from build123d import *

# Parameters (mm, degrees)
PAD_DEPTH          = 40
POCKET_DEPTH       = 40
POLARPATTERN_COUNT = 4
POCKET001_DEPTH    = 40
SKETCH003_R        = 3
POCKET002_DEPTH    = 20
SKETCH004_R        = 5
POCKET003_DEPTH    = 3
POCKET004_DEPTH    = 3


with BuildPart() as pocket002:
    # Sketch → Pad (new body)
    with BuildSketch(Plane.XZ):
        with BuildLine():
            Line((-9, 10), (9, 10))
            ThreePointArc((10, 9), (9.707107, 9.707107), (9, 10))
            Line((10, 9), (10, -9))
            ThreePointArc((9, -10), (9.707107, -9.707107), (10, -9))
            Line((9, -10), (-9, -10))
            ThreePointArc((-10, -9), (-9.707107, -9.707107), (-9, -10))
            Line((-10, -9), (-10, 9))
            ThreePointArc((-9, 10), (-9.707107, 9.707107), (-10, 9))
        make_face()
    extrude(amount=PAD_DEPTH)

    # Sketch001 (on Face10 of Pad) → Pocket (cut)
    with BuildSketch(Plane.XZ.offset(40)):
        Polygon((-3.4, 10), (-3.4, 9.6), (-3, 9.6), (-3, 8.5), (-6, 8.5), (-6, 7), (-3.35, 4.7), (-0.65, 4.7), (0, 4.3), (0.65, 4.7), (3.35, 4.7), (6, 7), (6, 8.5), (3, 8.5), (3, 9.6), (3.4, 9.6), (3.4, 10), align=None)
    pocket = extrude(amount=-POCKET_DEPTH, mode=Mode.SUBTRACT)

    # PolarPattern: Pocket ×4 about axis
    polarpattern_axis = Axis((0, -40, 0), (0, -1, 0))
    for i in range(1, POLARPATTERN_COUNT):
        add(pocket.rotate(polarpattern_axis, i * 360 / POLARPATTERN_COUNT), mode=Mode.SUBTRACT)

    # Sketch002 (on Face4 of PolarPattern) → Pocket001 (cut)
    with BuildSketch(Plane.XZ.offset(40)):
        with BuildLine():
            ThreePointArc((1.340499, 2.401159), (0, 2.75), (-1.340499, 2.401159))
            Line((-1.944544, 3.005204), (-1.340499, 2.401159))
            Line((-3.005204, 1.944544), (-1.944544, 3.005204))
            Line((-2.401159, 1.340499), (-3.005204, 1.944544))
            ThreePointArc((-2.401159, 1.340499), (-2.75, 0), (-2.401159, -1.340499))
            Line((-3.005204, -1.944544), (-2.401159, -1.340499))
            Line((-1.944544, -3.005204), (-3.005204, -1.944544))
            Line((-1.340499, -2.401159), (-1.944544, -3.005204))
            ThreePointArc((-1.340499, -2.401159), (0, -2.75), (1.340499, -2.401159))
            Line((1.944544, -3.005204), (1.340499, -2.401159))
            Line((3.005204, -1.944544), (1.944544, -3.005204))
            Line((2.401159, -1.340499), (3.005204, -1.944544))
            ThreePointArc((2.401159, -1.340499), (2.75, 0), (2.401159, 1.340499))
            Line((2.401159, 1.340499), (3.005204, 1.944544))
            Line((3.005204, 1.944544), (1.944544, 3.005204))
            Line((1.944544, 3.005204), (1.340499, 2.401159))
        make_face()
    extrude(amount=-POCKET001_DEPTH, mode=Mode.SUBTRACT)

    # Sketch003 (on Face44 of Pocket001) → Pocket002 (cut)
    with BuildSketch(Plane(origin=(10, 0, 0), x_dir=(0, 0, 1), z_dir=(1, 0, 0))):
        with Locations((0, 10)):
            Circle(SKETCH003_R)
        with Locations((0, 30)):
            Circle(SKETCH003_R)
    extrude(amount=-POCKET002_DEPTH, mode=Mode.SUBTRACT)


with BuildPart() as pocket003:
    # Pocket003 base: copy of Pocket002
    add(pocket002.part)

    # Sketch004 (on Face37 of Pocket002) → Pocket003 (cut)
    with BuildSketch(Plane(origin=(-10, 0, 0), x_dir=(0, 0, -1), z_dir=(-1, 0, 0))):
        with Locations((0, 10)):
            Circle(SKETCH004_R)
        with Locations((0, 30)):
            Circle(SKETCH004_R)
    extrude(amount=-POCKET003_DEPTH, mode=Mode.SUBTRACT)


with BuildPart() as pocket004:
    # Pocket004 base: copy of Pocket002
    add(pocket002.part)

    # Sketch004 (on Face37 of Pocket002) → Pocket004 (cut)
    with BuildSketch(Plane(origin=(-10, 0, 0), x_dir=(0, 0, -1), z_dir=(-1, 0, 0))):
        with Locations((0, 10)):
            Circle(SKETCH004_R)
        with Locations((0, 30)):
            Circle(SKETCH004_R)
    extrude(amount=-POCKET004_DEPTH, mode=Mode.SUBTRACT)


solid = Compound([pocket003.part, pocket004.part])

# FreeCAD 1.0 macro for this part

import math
import FreeCAD as App
import Part
import Sketcher
Q = App.Units.Quantity

doc = App.newDocument("Part")
params = doc.addObject("Spreadsheet::Sheet", "Params")
for row, (alias, value) in enumerate([
    ("sketch1_radius", "0.999999 mm"),
    ("sketch1_width", "18 mm"),
    ("pad1_length", "40 mm"),
    ("sketch2_width", "3 mm"),
    ("sketch2_width2", "0.4 mm"),
    ("sketch2_width3", "2.7 mm"),
    ("sketch2_width4", "6.8 mm"),
    ("sketch2_height", "1.1 mm"),
    ("pocket1_length", "40 mm"),
    ("sketch3_length", "1.5 mm"),
    ("pocket2_length", "40 mm"),
    ("sketch4_diameter", "6 mm"),
    ("pocket3_length", "20 mm"),
    ("sketch5_diameter", "10 mm"),
    ("pocket4_length", "3 mm"),
    ("sketch6_diameter", "10 mm"),
    ("pocket5_length", "3 mm"),
], start=1):
    params.set(f"A{row}", alias)
    params.set(f"B{row}", "=" + value)
    params.setAlias(f"B{row}", alias)

body = doc.addObject("PartDesign::Body", "Body")

# Sketch on XZ plane
sketch1 = body.newObject("Sketcher::SketchObject", "Sketch")
sketch1.AttachmentSupport = (doc.getObject("XZ_Plane"), [""])
sketch1.MapMode = "FlatFace"
sketch1.addGeometry([
    Part.LineSegment(App.Vector(9, 10, 0), App.Vector(-9, 10, 0)),  # 0
    Part.ArcOfCircle(Part.Circle(App.Vector(-9.000001, 9.000001, 0), App.Vector(0, 0, 1), 0.999999), math.radians(89.999957), math.radians(180.000043)),  # 1
    Part.LineSegment(App.Vector(-10, 9, 0), App.Vector(-10, -9, 0)),  # 2
    Part.ArcOfCircle(Part.Circle(App.Vector(-9.000001, -9.000001, 0), App.Vector(0, 0, 1), 0.999999), math.radians(179.999957), math.radians(270.000043)),  # 3
    Part.LineSegment(App.Vector(-9, -10, 0), App.Vector(9, -10, 0)),  # 4
    Part.ArcOfCircle(Part.Circle(App.Vector(9.000001, -9.000001, 0), App.Vector(0, 0, 1), 0.999999), math.radians(-90.000043), math.radians(0.000043)),  # 5
    Part.LineSegment(App.Vector(10, -9, 0), App.Vector(10, 9, 0)),  # 6
    Part.ArcOfCircle(Part.Circle(App.Vector(9.000001, 9.000001, 0), App.Vector(0, 0, 1), 0.999999), math.radians(-0.000043), math.radians(90.000043)),  # 7
], False)
sketch1.addConstraint([
    Sketcher.Constraint("Tangent", 0, 2, 1, 1),
    Sketcher.Constraint("Tangent", 1, 2, 2, 1),
    Sketcher.Constraint("Tangent", 2, 2, 3, 1),
    Sketcher.Constraint("Tangent", 3, 2, 4, 1),
    Sketcher.Constraint("Tangent", 4, 2, 5, 1),
    Sketcher.Constraint("Tangent", 5, 2, 6, 1),
    Sketcher.Constraint("Tangent", 6, 2, 7, 1),
    Sketcher.Constraint("Tangent", 7, 2, 0, 1),
    Sketcher.Constraint("Horizontal", 0),
    Sketcher.Constraint("Vertical", 2),
    Sketcher.Constraint("Horizontal", 4),
    Sketcher.Constraint("Vertical", 6),
    Sketcher.Constraint("Equal", 1, 3),
    Sketcher.Constraint("Equal", 3, 5),
    Sketcher.Constraint("Equal", 5, 7),
    Sketcher.Constraint("Symmetric", 1, 3, 5, 3, -1, 1),
    Sketcher.Constraint("Equal", 4, 2),
    Sketcher.Constraint("Radius", 1, Q("0.999999 mm")),
    Sketcher.Constraint("DistanceX", 0, 2, 0, 1, Q("18 mm")),
])
sketch1.setExpression("Constraints[17]", "Params.sketch1_radius")
sketch1.setExpression("Constraints[18]", "Params.sketch1_width")
pad1 = body.newObject("PartDesign::Pad", "Pad")
pad1.Profile = sketch1
pad1.setExpression("Length", "Params.pad1_length")

# Sketch on XZ plane
sketch2 = body.newObject("Sketcher::SketchObject", "Sketch001")
sketch2.AttachmentSupport = (doc.getObject("XZ_Plane"), [""])
sketch2.MapMode = "FlatFace"
sketch2.AttachmentOffset = App.Placement(App.Vector(0, 0, 40), App.Rotation())
sketch2.addGeometry([
    Part.LineSegment(App.Vector(-3.4, 10, 0), App.Vector(-3.4, 9.6, 0)),  # 0
    Part.LineSegment(App.Vector(-3.4, 9.6, 0), App.Vector(-3, 9.6, 0)),  # 1
    Part.LineSegment(App.Vector(-3, 9.6, 0), App.Vector(-3, 8.5, 0)),  # 2
    Part.LineSegment(App.Vector(-3, 8.5, 0), App.Vector(-6, 8.5, 0)),  # 3
    Part.LineSegment(App.Vector(-6, 8.5, 0), App.Vector(-6, 7, 0)),  # 4
    Part.LineSegment(App.Vector(-6, 7, 0), App.Vector(-3.35, 4.7, 0)),  # 5
    Part.LineSegment(App.Vector(-3.35, 4.7, 0), App.Vector(-0.65, 4.7, 0)),  # 6
    Part.LineSegment(App.Vector(-0.65, 4.7, 0), App.Vector(0, 4.3, 0)),  # 7
    Part.LineSegment(App.Vector(0, 4.3, 0), App.Vector(0.65, 4.7, 0)),  # 8
    Part.LineSegment(App.Vector(0.65, 4.7, 0), App.Vector(3.35, 4.7, 0)),  # 9
    Part.LineSegment(App.Vector(3.35, 4.7, 0), App.Vector(6, 7, 0)),  # 10
    Part.LineSegment(App.Vector(6, 7, 0), App.Vector(6, 8.5, 0)),  # 11
    Part.LineSegment(App.Vector(6, 8.5, 0), App.Vector(3, 8.5, 0)),  # 12
    Part.LineSegment(App.Vector(3, 8.5, 0), App.Vector(3, 9.6, 0)),  # 13
    Part.LineSegment(App.Vector(3, 9.6, 0), App.Vector(3.4, 9.6, 0)),  # 14
    Part.LineSegment(App.Vector(3.4, 9.6, 0), App.Vector(3.4, 10, 0)),  # 15
    Part.LineSegment(App.Vector(3.4, 10, 0), App.Vector(-3.4, 10, 0)),  # 16
], False)
sketch2.addConstraint([
    Sketcher.Constraint("Coincident", 0, 2, 1, 1),
    Sketcher.Constraint("Coincident", 1, 2, 2, 1),
    Sketcher.Constraint("Coincident", 2, 2, 3, 1),
    Sketcher.Constraint("Coincident", 3, 2, 4, 1),
    Sketcher.Constraint("Coincident", 4, 2, 5, 1),
    Sketcher.Constraint("Coincident", 5, 2, 6, 1),
    Sketcher.Constraint("Coincident", 6, 2, 7, 1),
    Sketcher.Constraint("Coincident", 7, 2, 8, 1),
    Sketcher.Constraint("Coincident", 8, 2, 9, 1),
    Sketcher.Constraint("Coincident", 9, 2, 10, 1),
    Sketcher.Constraint("Coincident", 10, 2, 11, 1),
    Sketcher.Constraint("Coincident", 11, 2, 12, 1),
    Sketcher.Constraint("Coincident", 12, 2, 13, 1),
    Sketcher.Constraint("Coincident", 13, 2, 14, 1),
    Sketcher.Constraint("Coincident", 14, 2, 15, 1),
    Sketcher.Constraint("Coincident", 15, 2, 16, 1),
    Sketcher.Constraint("Coincident", 16, 2, 0, 1),
    Sketcher.Constraint("Vertical", 0),
    Sketcher.Constraint("Horizontal", 1),
    Sketcher.Constraint("Vertical", 2),
    Sketcher.Constraint("Horizontal", 3),
    Sketcher.Constraint("Vertical", 4),
    Sketcher.Constraint("Horizontal", 6),
    Sketcher.Constraint("Horizontal", 9),
    Sketcher.Constraint("Vertical", 11),
    Sketcher.Constraint("Horizontal", 12),
    Sketcher.Constraint("Vertical", 13),
    Sketcher.Constraint("Horizontal", 14),
    Sketcher.Constraint("Vertical", 15),
    Sketcher.Constraint("Horizontal", 16),
    Sketcher.Constraint("Symmetric", 6, 2, 8, 2, -2),
    Sketcher.Constraint("Symmetric", 4, 2, 10, 2, -2),
    Sketcher.Constraint("Symmetric", 2, 2, 12, 2, -2),
    Sketcher.Constraint("Symmetric", 0, 2, 14, 2, -2),
    Sketcher.Constraint("PointOnObject", 7, 2, -2),
    Sketcher.Constraint("Equal", 6, 9),
    Sketcher.Constraint("Equal", 14, 0),
    Sketcher.Constraint("DistanceX", 3, 2, 3, 1, Q("3 mm")),
    Sketcher.Constraint("DistanceX", 1, 1, 1, 2, Q("0.4 mm")),
    Sketcher.Constraint("DistanceX", 6, 1, 6, 2, Q("2.7 mm")),
    Sketcher.Constraint("DistanceX", 16, 2, 16, 1, Q("6.8 mm")),
    Sketcher.Constraint("DistanceY", 2, 2, 2, 1, Q("1.1 mm")),
    Sketcher.Constraint("DistanceY", 4, 2, 4, 1, Q("1.5 mm")),
    Sketcher.Constraint("DistanceY", -1, 1, 4, 2, Q("7 mm")),
    Sketcher.Constraint("DistanceX", 5, 2, 8, 2, Q("4 mm")),
    Sketcher.Constraint("DistanceY", -1, 1, 5, 2, Q("4.7 mm")),
    Sketcher.Constraint("DistanceY", -1, 1, 7, 2, Q("4.3 mm")),
])
sketch2.setExpression("Constraints[37]", "Params.sketch2_width")
sketch2.setExpression("Constraints[38]", "Params.sketch2_width2")
sketch2.setExpression("Constraints[39]", "Params.sketch2_width3")
sketch2.setExpression("Constraints[40]", "Params.sketch2_width4")
sketch2.setExpression("Constraints[41]", "Params.sketch2_height")
pocket1 = body.newObject("PartDesign::Pocket", "Pocket")
pocket1.Profile = sketch2
pocket1.setExpression("Length", "Params.pocket1_length")
doc.recompute()

polarpattern = body.newObject("PartDesign::PolarPattern", "PolarPattern")
polarpattern.Originals = [pocket1]
polarpattern.Axis = (doc.getObject("Y_Axis"), [""])
polarpattern.Angle = 360
polarpattern.Occurrences = 4
body.Tip = polarpattern

# Sketch on XZ plane
sketch3 = body.newObject("Sketcher::SketchObject", "Sketch002")
sketch3.AttachmentSupport = (doc.getObject("XZ_Plane"), [""])
sketch3.MapMode = "FlatFace"
sketch3.AttachmentOffset = App.Placement(App.Vector(0, 0, 40), App.Rotation())
sketch3.addGeometry([
    Part.ArcOfCircle(Part.Circle(App.Vector(0, -0.000003, 0), App.Vector(0, 0, 1), 2.750003), math.radians(60.826646), math.radians(119.173354)),  # 0
    Part.LineSegment(App.Vector(-1.340499, 2.401159, 0), App.Vector(-1.944544, 3.005204, 0)),  # 1
    Part.LineSegment(App.Vector(-1.944544, 3.005204, 0), App.Vector(-3.005204, 1.944544, 0)),  # 2
    Part.LineSegment(App.Vector(-3.005204, 1.944544, 0), App.Vector(-2.401159, 1.340499, 0)),  # 3
    Part.ArcOfCircle(Part.Circle(App.Vector(0.000003, 0, 0), App.Vector(0, 0, 1), 2.750003), math.radians(150.826646), math.radians(209.173354)),  # 4
    Part.LineSegment(App.Vector(-2.401159, -1.340499, 0), App.Vector(-3.005204, -1.944544, 0)),  # 5
    Part.LineSegment(App.Vector(-3.005204, -1.944544, 0), App.Vector(-1.944544, -3.005204, 0)),  # 6
    Part.LineSegment(App.Vector(-1.944544, -3.005204, 0), App.Vector(-1.340499, -2.401159, 0)),  # 7
    Part.ArcOfCircle(Part.Circle(App.Vector(0, 0.000003, 0), App.Vector(0, 0, 1), 2.750003), math.radians(-119.173354), math.radians(-60.826646)),  # 8
    Part.LineSegment(App.Vector(1.340499, -2.401159, 0), App.Vector(1.944544, -3.005204, 0)),  # 9
    Part.LineSegment(App.Vector(1.944544, -3.005204, 0), App.Vector(3.005204, -1.944544, 0)),  # 10
    Part.LineSegment(App.Vector(3.005204, -1.944544, 0), App.Vector(2.401159, -1.340499, 0)),  # 11
    Part.ArcOfCircle(Part.Circle(App.Vector(-0.000003, 0, 0), App.Vector(0, 0, 1), 2.750003), math.radians(-29.173354), math.radians(29.173354)),  # 12
    Part.LineSegment(App.Vector(2.401159, 1.340499, 0), App.Vector(3.005204, 1.944544, 0)),  # 13
    Part.LineSegment(App.Vector(3.005204, 1.944544, 0), App.Vector(1.944544, 3.005204, 0)),  # 14
    Part.LineSegment(App.Vector(1.944544, 3.005204, 0), App.Vector(1.340499, 2.401159, 0)),  # 15
], False)
sketch3.addConstraint([
    Sketcher.Constraint("Coincident", 0, 2, 1, 1),
    Sketcher.Constraint("Coincident", 1, 2, 2, 1),
    Sketcher.Constraint("Coincident", 2, 2, 3, 1),
    Sketcher.Constraint("Coincident", 3, 2, 4, 1),
    Sketcher.Constraint("Coincident", 4, 2, 5, 1),
    Sketcher.Constraint("Coincident", 5, 2, 6, 1),
    Sketcher.Constraint("Coincident", 6, 2, 7, 1),
    Sketcher.Constraint("Coincident", 7, 2, 8, 1),
    Sketcher.Constraint("Coincident", 8, 2, 9, 1),
    Sketcher.Constraint("Coincident", 9, 2, 10, 1),
    Sketcher.Constraint("Coincident", 10, 2, 11, 1),
    Sketcher.Constraint("Coincident", 11, 2, 12, 1),
    Sketcher.Constraint("Coincident", 12, 2, 13, 1),
    Sketcher.Constraint("Coincident", 13, 2, 14, 1),
    Sketcher.Constraint("Coincident", 14, 2, 15, 1),
    Sketcher.Constraint("Coincident", 15, 2, 0, 1),
    Sketcher.Constraint("Coincident", 0, 3, -1, 1),
    Sketcher.Constraint("Coincident", 4, 3, -1, 1),
    Sketcher.Constraint("Coincident", 8, 3, -1, 1),
    Sketcher.Constraint("Coincident", 12, 3, -1, 1),
    Sketcher.Constraint("Equal", 0, 4),
    Sketcher.Constraint("Equal", 4, 8),
    Sketcher.Constraint("Equal", 8, 12),
    Sketcher.Constraint("Symmetric", 1, 2, 9, 2, -1, 1),
    Sketcher.Constraint("Symmetric", 2, 2, 10, 2, -1, 1),
    Sketcher.Constraint("Symmetric", 5, 2, 13, 2, -1, 1),
    Sketcher.Constraint("Symmetric", 6, 2, 14, 2, -1, 1),
    Sketcher.Constraint("Symmetric", 6, 2, 9, 2, -2),
    Sketcher.Constraint("Symmetric", 5, 2, 10, 2, -2),
    Sketcher.Constraint("Perpendicular", 1, 2),
    Sketcher.Constraint("Perpendicular", 2, 3),
    Sketcher.Constraint("Perpendicular", 3, 5),
    Sketcher.Constraint("Perpendicular", 5, 6),
    Sketcher.Constraint("Perpendicular", 6, 7),
    Sketcher.Constraint("Perpendicular", 7, 9),
    Sketcher.Constraint("Perpendicular", 10, 11),
    Sketcher.Constraint("Perpendicular", 11, 13),
    Sketcher.Constraint("Perpendicular", 14, 15),
    Sketcher.Constraint("Equal", 1, 3),
    Sketcher.Constraint("Distance", 2, Q("1.5 mm")),
    Sketcher.Constraint("Radius", 0, Q("2.750003 mm")),
    Sketcher.Constraint("DistanceY", 8, 3, 1, 2, Q("3.005201 mm")),
])
sketch3.setExpression("Constraints[39]", "Params.sketch3_length")
pocket2 = body.newObject("PartDesign::Pocket", "Pocket001")
pocket2.Profile = sketch3
pocket2.setExpression("Length", "Params.pocket2_length")

# Sketch on YZ plane
sketch4 = body.newObject("Sketcher::SketchObject", "Sketch003")
sketch4.AttachmentSupport = (doc.getObject("YZ_Plane"), [""])
sketch4.MapMode = "FlatFace"
sketch4.AttachmentOffset = App.Placement(App.Vector(0, 0, 10), App.Rotation())
sketch4.addGeometry([
    Part.Circle(App.Vector(-10, 0, 0), App.Vector(0, 0, 1), 3),
    Part.Circle(App.Vector(-30, 0, 0), App.Vector(0, 0, 1), 3),
], False)
sketch4.addConstraint([
    Sketcher.Constraint("Equal", 0, 1),
    Sketcher.Constraint("PointOnObject", 0, 3, -1),
    Sketcher.Constraint("PointOnObject", 1, 3, -1),
    Sketcher.Constraint("Diameter", 0, Q("6 mm")),
    Sketcher.Constraint("DistanceX", 0, 3, -1, 1, Q("10 mm")),
    Sketcher.Constraint("DistanceX", 1, 3, -1, 1, Q("30 mm")),
])
sketch4.setExpression("Constraints[3]", "Params.sketch4_diameter")
pocket3 = body.newObject("PartDesign::Pocket", "Pocket002")
pocket3.Profile = sketch4
pocket3.setExpression("Length", "Params.pocket3_length")
body2 = doc.addObject("PartDesign::Body", "Body001")
doc.recompute()

body2.BaseFeature = body
doc.recompute()

# Sketch on YZ plane
sketch5 = body2.newObject("Sketcher::SketchObject", "Sketch004")
sketch5.AttachmentSupport = (doc.getObject("YZ_Plane001"), [""])
sketch5.MapMode = "FlatFace"
sketch5.AttachmentOffset = App.Placement(App.Vector(0, 0, -10), App.Rotation())
sketch5.addGeometry([
    Part.Circle(App.Vector(-10, 0, 0), App.Vector(0, 0, 1), 5),
    Part.Circle(App.Vector(-30, 0, 0), App.Vector(0, 0, 1), 5),
], False)
sketch5.addConstraint([
    Sketcher.Constraint("Equal", 0, 1),
    Sketcher.Constraint("PointOnObject", 0, 3, -1),
    Sketcher.Constraint("PointOnObject", 1, 3, -1),
    Sketcher.Constraint("Diameter", 0, Q("10 mm")),
    Sketcher.Constraint("DistanceX", 0, 3, -1, 1, Q("10 mm")),
    Sketcher.Constraint("DistanceX", 1, 3, -1, 1, Q("30 mm")),
])
sketch5.setExpression("Constraints[3]", "Params.sketch5_diameter")
pocket4 = body2.newObject("PartDesign::Pocket", "Pocket003")
pocket4.Profile = sketch5
pocket4.setExpression("Length", "Params.pocket4_length")
pocket4.Reversed = True

# Sketch on YZ plane
sketch6 = body.newObject("Sketcher::SketchObject", "Sketch005")
sketch6.AttachmentSupport = (doc.getObject("YZ_Plane"), [""])
sketch6.MapMode = "FlatFace"
sketch6.AttachmentOffset = App.Placement(App.Vector(0, 0, -10), App.Rotation())
sketch6.addGeometry([
    Part.Circle(App.Vector(-10, 0, 0), App.Vector(0, 0, 1), 5),
    Part.Circle(App.Vector(-30, 0, 0), App.Vector(0, 0, 1), 5),
], False)
sketch6.addConstraint([
    Sketcher.Constraint("Equal", 0, 1),
    Sketcher.Constraint("PointOnObject", 0, 3, -1),
    Sketcher.Constraint("PointOnObject", 1, 3, -1),
    Sketcher.Constraint("Diameter", 0, Q("10 mm")),
    Sketcher.Constraint("DistanceX", 0, 3, -1, 1, Q("10 mm")),
    Sketcher.Constraint("DistanceX", 1, 3, -1, 1, Q("30 mm")),
])
sketch6.setExpression("Constraints[3]", "Params.sketch6_diameter")
pocket5 = body.newObject("PartDesign::Pocket", "Pocket004")
pocket5.Profile = sketch6
pocket5.setExpression("Length", "Params.pocket5_length")
pocket5.Reversed = True

doc.recompute()
